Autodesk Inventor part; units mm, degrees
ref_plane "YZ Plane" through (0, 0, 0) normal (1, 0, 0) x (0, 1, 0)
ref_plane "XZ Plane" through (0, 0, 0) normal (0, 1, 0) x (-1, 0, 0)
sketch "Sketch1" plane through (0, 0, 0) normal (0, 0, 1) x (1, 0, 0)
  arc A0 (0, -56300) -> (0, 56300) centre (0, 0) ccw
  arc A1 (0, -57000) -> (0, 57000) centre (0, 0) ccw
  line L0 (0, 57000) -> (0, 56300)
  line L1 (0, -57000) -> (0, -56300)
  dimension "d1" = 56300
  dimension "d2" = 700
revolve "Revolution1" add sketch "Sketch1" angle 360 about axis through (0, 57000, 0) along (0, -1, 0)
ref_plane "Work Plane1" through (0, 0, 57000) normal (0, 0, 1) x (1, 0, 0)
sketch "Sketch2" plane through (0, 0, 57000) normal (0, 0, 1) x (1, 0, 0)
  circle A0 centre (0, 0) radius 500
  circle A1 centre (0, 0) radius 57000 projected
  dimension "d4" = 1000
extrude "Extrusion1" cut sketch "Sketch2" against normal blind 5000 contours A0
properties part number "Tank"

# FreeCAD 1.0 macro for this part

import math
import FreeCAD as App
import Part
import Sketcher
from FreeCAD import Vector

doc = App.newDocument("Part")
params = doc.addObject("Spreadsheet::Sheet", "Params")
for row, (alias, value) in enumerate([
    ("sketch1_radius", "56300 mm"),
    ("sketch1_height", "700 mm"),
    ("revolution_angle", "360 deg"),
    ("sketch2_diameter", "1000 mm"),
    ("pocket1_length", "5000 mm"),
], start=1):
    params.set(f"A{row}", alias)
    params.set(f"B{row}", "=" + value)
    params.setAlias(f"B{row}", alias)

body = doc.addObject("PartDesign::Body", "Body")

# Sketch on XY plane
sketch1 = doc.addObject("Sketcher::SketchObject", "Sketch")
body.addObject(sketch1)
sketch1.AttachmentSupport = (doc.XY_Plane, [""])
sketch1.MapMode = "FlatFace"
sketch1.addGeometry(Part.ArcOfCircle(Part.Circle(Vector(0, 0, 0), Vector(0, 0, 1), 56300), math.radians(-90), math.radians(90)), False)
sketch1.addGeometry(Part.LineSegment(Vector(0, -56300, 0), Vector(0, -57000, 0)), False)
sketch1.addGeometry(Part.ArcOfCircle(Part.Circle(Vector(0, 0, 0), Vector(0, 0, 1), 57000), math.radians(-90), math.radians(90)), False)
sketch1.addGeometry(Part.LineSegment(Vector(0, 57000, 0), Vector(0, 56300, 0)), False)
sketch1.addConstraint(Sketcher.Constraint("Coincident", 0, 1, 1, 1))
sketch1.addConstraint(Sketcher.Constraint("Coincident", 1, 2, 2, 1))
sketch1.addConstraint(Sketcher.Constraint("Coincident", 2, 2, 3, 1))
sketch1.addConstraint(Sketcher.Constraint("Coincident", 3, 2, 0, 2))
sketch1.addConstraint(Sketcher.Constraint("Vertical", 1))
sketch1.addConstraint(Sketcher.Constraint("Vertical", 3))
sketch1.addConstraint(Sketcher.Constraint("Coincident", 0, 3, -1, 1))
sketch1.addConstraint(Sketcher.Constraint("Coincident", 2, 3, -1, 1))
sketch1.addConstraint(Sketcher.Constraint("PointOnObject", 1, 2, -2))
sketch1.addConstraint(Sketcher.Constraint("PointOnObject", 3, 2, -2))
sketch1.addConstraint(Sketcher.Constraint("Radius", 0, 56300.0))
sketch1.addConstraint(Sketcher.Constraint("DistanceY", 1, 2, 1, 1, 700.0))
sketch1.setExpression("Constraints[10]", "Params.sketch1_radius")
sketch1.setExpression("Constraints[11]", "Params.sketch1_height")
revolution = doc.addObject("PartDesign::Revolution", "Revolution")
body.addObject(revolution)
revolution.Profile = sketch1
revolution.ReferenceAxis = (sketch1, ["V_Axis"])
revolution.setExpression("Angle", "Params.revolution_angle")

# Sketch on XY plane
sketch2 = doc.addObject("Sketcher::SketchObject", "Sketch001")
body.addObject(sketch2)
sketch2.AttachmentSupport = (doc.XY_Plane, [""])
sketch2.MapMode = "FlatFace"
sketch2.AttachmentOffset = App.Placement(Vector(0, 0, 57000), App.Rotation())
sketch2.addGeometry(Part.Circle(Vector(0, 0, 0), Vector(0, 0, 1), 500), False)
sketch2.addConstraint(Sketcher.Constraint("Coincident", 0, 3, -1, 1))
sketch2.addConstraint(Sketcher.Constraint("Diameter", 0, 1000.0))
sketch2.setExpression("Constraints[1]", "Params.sketch2_diameter")
pocket1 = doc.addObject("PartDesign::Pocket", "Pocket")
body.addObject(pocket1)
pocket1.Profile = sketch2
pocket1.setExpression("Length", "Params.pocket1_length")

doc.recompute()
